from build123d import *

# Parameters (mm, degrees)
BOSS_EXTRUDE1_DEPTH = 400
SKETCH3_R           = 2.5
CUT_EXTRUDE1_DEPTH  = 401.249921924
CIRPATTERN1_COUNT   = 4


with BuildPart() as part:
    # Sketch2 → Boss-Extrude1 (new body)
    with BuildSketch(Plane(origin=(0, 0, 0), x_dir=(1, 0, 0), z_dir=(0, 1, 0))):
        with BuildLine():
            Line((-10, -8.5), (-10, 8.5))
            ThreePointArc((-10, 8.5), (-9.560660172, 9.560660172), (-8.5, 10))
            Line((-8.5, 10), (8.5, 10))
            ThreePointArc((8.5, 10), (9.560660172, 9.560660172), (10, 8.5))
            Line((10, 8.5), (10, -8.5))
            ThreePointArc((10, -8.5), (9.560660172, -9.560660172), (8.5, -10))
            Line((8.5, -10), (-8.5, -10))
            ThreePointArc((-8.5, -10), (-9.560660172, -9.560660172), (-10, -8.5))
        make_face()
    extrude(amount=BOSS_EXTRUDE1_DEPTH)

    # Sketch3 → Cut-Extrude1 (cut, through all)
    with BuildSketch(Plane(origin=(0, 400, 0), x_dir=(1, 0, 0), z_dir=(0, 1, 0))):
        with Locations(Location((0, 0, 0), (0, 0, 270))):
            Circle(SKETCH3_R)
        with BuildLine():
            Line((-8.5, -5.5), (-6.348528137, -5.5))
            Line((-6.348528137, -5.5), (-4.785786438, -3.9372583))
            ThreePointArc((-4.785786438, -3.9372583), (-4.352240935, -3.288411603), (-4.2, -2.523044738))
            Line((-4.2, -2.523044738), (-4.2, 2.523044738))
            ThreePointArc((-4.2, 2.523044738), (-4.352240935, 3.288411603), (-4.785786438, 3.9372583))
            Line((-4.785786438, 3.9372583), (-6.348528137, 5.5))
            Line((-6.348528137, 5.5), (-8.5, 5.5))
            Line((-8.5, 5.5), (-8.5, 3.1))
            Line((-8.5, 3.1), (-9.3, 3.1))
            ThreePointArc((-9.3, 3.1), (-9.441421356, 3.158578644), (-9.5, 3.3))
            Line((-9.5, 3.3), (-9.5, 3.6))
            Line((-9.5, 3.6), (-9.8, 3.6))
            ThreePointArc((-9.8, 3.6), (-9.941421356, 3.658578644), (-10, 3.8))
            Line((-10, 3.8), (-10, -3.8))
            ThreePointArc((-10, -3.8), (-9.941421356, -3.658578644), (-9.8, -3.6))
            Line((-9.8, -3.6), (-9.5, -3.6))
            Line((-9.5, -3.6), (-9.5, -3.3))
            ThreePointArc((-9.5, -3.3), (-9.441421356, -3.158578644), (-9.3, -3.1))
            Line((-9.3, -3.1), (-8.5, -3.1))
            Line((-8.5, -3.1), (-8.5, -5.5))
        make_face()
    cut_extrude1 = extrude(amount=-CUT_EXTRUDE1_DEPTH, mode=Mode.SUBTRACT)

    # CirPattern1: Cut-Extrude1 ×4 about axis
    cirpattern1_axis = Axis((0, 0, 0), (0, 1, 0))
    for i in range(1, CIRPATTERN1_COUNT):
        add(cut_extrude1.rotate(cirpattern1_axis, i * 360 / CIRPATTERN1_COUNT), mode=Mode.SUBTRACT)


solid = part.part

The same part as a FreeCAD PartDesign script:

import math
import FreeCAD as App
import Part
import Sketcher

V = App.Vector
Q = App.Units.Quantity

doc = App.newDocument("Part")
params = doc.addObject("Spreadsheet::Sheet", "Params")
for row, (alias, value) in enumerate([
    ("sketch1_radius", "1.5 mm"),
    ("sketch1_width", "17 mm"),
    ("pad1_length", "400 mm"),
    ("sketch2_diameter", "5 mm"),
    ("sketch2_radius", "2 mm"),
    ("sketch2_radius2", "0.2 mm"),
    ("sketch2_width", "0.8 mm"),
    ("sketch2_width2", "0.3 mm"),
], start=1):
    params.set(f"A{row}", alias)
    params.set(f"B{row}", "=" + value)
    params.setAlias(f"B{row}", alias)

body = doc.addObject("PartDesign::Body", "Body")

# Sketch on XZ plane
sketch1 = body.newObject("Sketcher::SketchObject", "Sketch")
sketch1.AttachmentSupport = (doc.getObject("XZ_Plane"), [""])
sketch1.MapMode = "FlatFace"
sketch1.addGeometry(Part.LineSegment(V(-10, -8.5, 0), V(-10, 8.5, 0)), False)
sketch1.addGeometry(Part.ArcOfCircle(Part.Circle(V(-8.5, 8.5, 0), V(0, 0, 1), 1.5), math.radians(90), math.radians(180)), False)
sketch1.addGeometry(Part.LineSegment(V(-8.5, 10, 0), V(8.5, 10, 0)), False)
sketch1.addGeometry(Part.ArcOfCircle(Part.Circle(V(8.5, 8.5, 0), V(0, 0, 1), 1.5), math.radians(0), math.radians(90)), False)
sketch1.addGeometry(Part.LineSegment(V(10, 8.5, 0), V(10, -8.5, 0)), False)
sketch1.addGeometry(Part.ArcOfCircle(Part.Circle(V(8.5, -8.5, 0), V(0, 0, 1), 1.5), math.radians(-90), math.radians(0)), False)
sketch1.addGeometry(Part.LineSegment(V(8.5, -10, 0), V(-8.5, -10, 0)), False)
sketch1.addGeometry(Part.ArcOfCircle(Part.Circle(V(-8.5, -8.5, 0), V(0, 0, 1), 1.5), math.radians(180), math.radians(270)), False)
sketch1.addConstraint(Sketcher.Constraint("Tangent", 0, 2, 1, 2))
sketch1.addConstraint(Sketcher.Constraint("Tangent", 1, 1, 2, 1))
sketch1.addConstraint(Sketcher.Constraint("Tangent", 2, 2, 3, 2))
sketch1.addConstraint(Sketcher.Constraint("Tangent", 3, 1, 4, 1))
sketch1.addConstraint(Sketcher.Constraint("Tangent", 4, 2, 5, 2))
sketch1.addConstraint(Sketcher.Constraint("Tangent", 5, 1, 6, 1))
sketch1.addConstraint(Sketcher.Constraint("Tangent", 6, 2, 7, 2))
sketch1.addConstraint(Sketcher.Constraint("Tangent", 7, 1, 0, 1))
sketch1.addConstraint(Sketcher.Constraint("Vertical", 0))
sketch1.addConstraint(Sketcher.Constraint("Horizontal", 2))
sketch1.addConstraint(Sketcher.Constraint("Vertical", 4))
sketch1.addConstraint(Sketcher.Constraint("Horizontal", 6))
sketch1.addConstraint(Sketcher.Constraint("Equal", 1, 3))
sketch1.addConstraint(Sketcher.Constraint("Equal", 3, 5))
sketch1.addConstraint(Sketcher.Constraint("Equal", 5, 7))
sketch1.addConstraint(Sketcher.Constraint("Symmetric", 1, 3, 5, 3, -1, 1))
sketch1.addConstraint(Sketcher.Constraint("Equal", 6, 0))
sketch1.addConstraint(Sketcher.Constraint("Radius", 1, Q("1.5 mm")))
sketch1.addConstraint(Sketcher.Constraint("DistanceX", 2, 1, 2, 2, Q("17 mm")))
sketch1.setExpression("Constraints[17]", "Params.sketch1_radius")
sketch1.setExpression("Constraints[18]", "Params.sketch1_width")
pad1 = body.newObject("PartDesign::Pad", "Pad")
pad1.Profile = sketch1
pad1.setExpression("Length", "Params.pad1_length")
pad1.Reversed = True

# Sketch on XZ plane
sketch2 = body.newObject("Sketcher::SketchObject", "Sketch001")
sketch2.AttachmentSupport = (doc.getObject("XZ_Plane"), [""])
sketch2.MapMode = "FlatFace"
sketch2.AttachmentOffset = App.Placement(V(0, 0, -400), App.Rotation())
sketch2.addGeometry(Part.Circle(V(0, 0, 0), V(0, 0, 1), 2.5), False)
sketch2.addGeometry(Part.LineSegment(V(-8.5, 5.5, 0), V(-6.35, 5.5, 0)), False)
sketch2.addGeometry(Part.LineSegment(V(-6.35, 5.5, 0), V(-4.79, 3.94, 0)), False)
sketch2.addGeometry(Part.ArcOfCircle(Part.Circle(V(-6.2, 2.52, 0), V(0, 0, 1), 2), math.radians(0), math.radians(45)), False)
sketch2.addGeometry(Part.LineSegment(V(-4.2, 2.52, 0), V(-4.2, -2.52, 0)), False)
sketch2.addGeometry(Part.ArcOfCircle(Part.Circle(V(-6.2, -2.52, 0), V(0, 0, 1), 2), math.radians(-45), math.radians(0)), False)
sketch2.addGeometry(Part.LineSegment(V(-4.79, -3.94, 0), V(-6.35, -5.5, 0)), False)
sketch2.addGeometry(Part.LineSegment(V(-6.35, -5.5, 0), V(-8.5, -5.5, 0)), False)
sketch2.addGeometry(Part.LineSegment(V(-8.5, -5.5, 0), V(-8.5, -3.1, 0)), False)
sketch2.addGeometry(Part.LineSegment(V(-8.5, -3.1, 0), V(-9.3, -3.1, 0)), False)
sketch2.addGeometry(Part.ArcOfCircle(Part.Circle(V(-9.3, -3.3, 0), V(0, 0, 1), 0.2), math.radians(90), math.radians(180)), False)
sketch2.addGeometry(Part.LineSegment(V(-9.5, -3.3, 0), V(-9.5, -3.6, 0)), False)
sketch2.addGeometry(Part.LineSegment(V(-9.5, -3.6, 0), V(-9.8, -3.6, 0)), False)
sketch2.addGeometry(Part.ArcOfCircle(Part.Circle(V(-9.8, -3.8, 0), V(0, 0, 1), 0.2), math.radians(90), math.radians(180)), False)
sketch2.addGeometry(Part.LineSegment(V(-10, -3.8, 0), V(-10, 3.8, 0)), False)
sketch2.addGeometry(Part.ArcOfCircle(Part.Circle(V(-9.8, 3.8, 0), V(0, 0, 1), 0.2), math.radians(-180), math.radians(-90)), False)
sketch2.addGeometry(Part.LineSegment(V(-9.8, 3.6, 0), V(-9.5, 3.6, 0)), False)
sketch2.addGeometry(Part.LineSegment(V(-9.5, 3.6, 0), V(-9.5, 3.3, 0)), False)
sketch2.addGeometry(Part.ArcOfCircle(Part.Circle(V(-9.3, 3.3, 0), V(0, 0, 1), 0.2), math.radians(-180), math.radians(-90)), False)
sketch2.addGeometry(Part.LineSegment(V(-9.3, 3.1, 0), V(-8.5, 3.1, 0)), False)
sketch2.addGeometry(Part.LineSegment(V(-8.5, 3.1, 0), V(-8.5, 5.5, 0)), False)
sketch2.addConstraint(Sketcher.Constraint("Coincident", 1, 2, 2, 1))
sketch2.addConstraint(Sketcher.Constraint("Tangent", 2, 2, 3, 2))
sketch2.addConstraint(Sketcher.Constraint("Tangent", 3, 1, 4, 1))
sketch2.addConstraint(Sketcher.Constraint("Tangent", 4, 2, 5, 2))
sketch2.addConstraint(Sketcher.Constraint("Tangent", 5, 1, 6, 1))
sketch2.addConstraint(Sketcher.Constraint("Coincident", 6, 2, 7, 1))
sketch2.addConstraint(Sketcher.Constraint("Coincident", 7, 2, 8, 1))
sketch2.addConstraint(Sketcher.Constraint("Coincident", 8, 2, 9, 1))
sketch2.addConstraint(Sketcher.Constraint("Tangent", 9, 2, 10, 1))
sketch2.addConstraint(Sketcher.Constraint("Tangent", 10, 2, 11, 1))
sketch2.addConstraint(Sketcher.Constraint("Coincident", 11, 2, 12, 1))
sketch2.addConstraint(Sketcher.Constraint("Tangent", 12, 2, 13, 1))
sketch2.addConstraint(Sketcher.Constraint("Tangent", 13, 2, 14, 1))
sketch2.addConstraint(Sketcher.Constraint("Tangent", 14, 2, 15, 1))
sketch2.addConstraint(Sketcher.Constraint("Tangent", 15, 2, 16, 1))
sketch2.addConstraint(Sketcher.Constraint("Coincident", 16, 2, 17, 1))
sketch2.addConstraint(Sketcher.Constraint("Tangent", 17, 2, 18, 1))
sketch2.addConstraint(Sketcher.Constraint("Tangent", 18, 2, 19, 1))
sketch2.addConstraint(Sketcher.Constraint("Coincident", 19, 2, 20, 1))
sketch2.addConstraint(Sketcher.Constraint("Coincident", 20, 2, 1, 1))
sketch2.addConstraint(Sketcher.Constraint("Horizontal", 1))
sketch2.addConstraint(Sketcher.Constraint("Vertical", 4))
sketch2.addConstraint(Sketcher.Constraint("Horizontal", 7))
sketch2.addConstraint(Sketcher.Constraint("Vertical", 8))
sketch2.addConstraint(Sketcher.Constraint("Horizontal", 9))
sketch2.addConstraint(Sketcher.Constraint("Vertical", 11))
sketch2.addConstraint(Sketcher.Constraint("Horizontal", 12))
sketch2.addConstraint(Sketcher.Constraint("Vertical", 14))
sketch2.addConstraint(Sketcher.Constraint("Horizontal", 16))
sketch2.addConstraint(Sketcher.Constraint("Vertical", 17))
sketch2.addConstraint(Sketcher.Constraint("Horizontal", 19))
sketch2.addConstraint(Sketcher.Constraint("Vertical", 20))
sketch2.addConstraint(Sketcher.Constraint("Coincident", 0, 3, -1, 1))
sketch2.addConstraint(Sketcher.Constraint("Equal", 3, 5))
sketch2.addConstraint(Sketcher.Constraint("Equal", 10, 13))
sketch2.addConstraint(Sketcher.Constraint("Equal", 13, 15))
sketch2.addConstraint(Sketcher.Constraint("Equal", 15, 18))
sketch2.addConstraint(Sketcher.Constraint("Symmetric", 10, 3, 18, 3, -1))
sketch2.addConstraint(Sketcher.Constraint("Symmetric", 2, 2, 5, 1, -1))
sketch2.addConstraint(Sketcher.Constraint("Symmetric", 7, 2, 20, 2, -1))
sketch2.addConstraint(Sketcher.Constraint("Perpendicular", 2, 6))
sketch2.addConstraint(Sketcher.Constraint("Equal", 16, 11))
sketch2.addConstraint(Sketcher.Constraint("Equal", 11, 17))
sketch2.addConstraint(Sketcher.Constraint("Diameter", 0, Q("5 mm")))
sketch2.addConstraint(Sketcher.Constraint("Radius", 3, Q("2 mm")))
sketch2.addConstraint(Sketcher.Constraint("Radius", 10, Q("0.2 mm")))
sketch2.addConstraint(Sketcher.Constraint("DistanceX", 9, 2, 9, 1, Q("0.8 mm")))
sketch2.addConstraint(Sketcher.Constraint("DistanceX", 12, 2, 12, 1, Q("0.3 mm")))
sketch2.addConstraint(Sketcher.Constraint("DistanceY", 8, 1, 8, 2, Q("2.4 mm")))
sketch2.addConstraint(Sketcher.Constraint("DistanceY", 14, 1, 14, 2, Q("7.6 mm")))
sketch2.addConstraint(Sketcher.Constraint("DistanceX", 13, 2, -1, 1, Q("10 mm")))
sketch2.addConstraint(Sketcher.Constraint("DistanceX", 3, 3, -1, 1, Q("6.2 mm")))
sketch2.addConstraint(Sketcher.Constraint("DistanceX", 1, 1, 1, 2, Q("2.151472 mm")))
sketch2.setExpression("Constraints[43]", "Params.sketch2_diameter")
sketch2.setExpression("Constraints[44]", "Params.sketch2_radius")
sketch2.setExpression("Constraints[45]", "Params.sketch2_radius2")
sketch2.setExpression("Constraints[46]", "Params.sketch2_width")
sketch2.setExpression("Constraints[47]", "Params.sketch2_width2")
pocket1 = body.newObject("PartDesign::Pocket", "Pocket")
pocket1.Profile = sketch2
pocket1.Type = "ThroughAll"
pocket1.Reversed = True
doc.recompute()

polarpattern = body.newObject("PartDesign::PolarPattern", "PolarPattern")
polarpattern.Originals = [pocket1]
polarpattern.Axis = (doc.getObject("Y_Axis"), [""])
polarpattern.Angle = 360
polarpattern.Occurrences = 4
body.Tip = polarpattern

doc.recompute()
